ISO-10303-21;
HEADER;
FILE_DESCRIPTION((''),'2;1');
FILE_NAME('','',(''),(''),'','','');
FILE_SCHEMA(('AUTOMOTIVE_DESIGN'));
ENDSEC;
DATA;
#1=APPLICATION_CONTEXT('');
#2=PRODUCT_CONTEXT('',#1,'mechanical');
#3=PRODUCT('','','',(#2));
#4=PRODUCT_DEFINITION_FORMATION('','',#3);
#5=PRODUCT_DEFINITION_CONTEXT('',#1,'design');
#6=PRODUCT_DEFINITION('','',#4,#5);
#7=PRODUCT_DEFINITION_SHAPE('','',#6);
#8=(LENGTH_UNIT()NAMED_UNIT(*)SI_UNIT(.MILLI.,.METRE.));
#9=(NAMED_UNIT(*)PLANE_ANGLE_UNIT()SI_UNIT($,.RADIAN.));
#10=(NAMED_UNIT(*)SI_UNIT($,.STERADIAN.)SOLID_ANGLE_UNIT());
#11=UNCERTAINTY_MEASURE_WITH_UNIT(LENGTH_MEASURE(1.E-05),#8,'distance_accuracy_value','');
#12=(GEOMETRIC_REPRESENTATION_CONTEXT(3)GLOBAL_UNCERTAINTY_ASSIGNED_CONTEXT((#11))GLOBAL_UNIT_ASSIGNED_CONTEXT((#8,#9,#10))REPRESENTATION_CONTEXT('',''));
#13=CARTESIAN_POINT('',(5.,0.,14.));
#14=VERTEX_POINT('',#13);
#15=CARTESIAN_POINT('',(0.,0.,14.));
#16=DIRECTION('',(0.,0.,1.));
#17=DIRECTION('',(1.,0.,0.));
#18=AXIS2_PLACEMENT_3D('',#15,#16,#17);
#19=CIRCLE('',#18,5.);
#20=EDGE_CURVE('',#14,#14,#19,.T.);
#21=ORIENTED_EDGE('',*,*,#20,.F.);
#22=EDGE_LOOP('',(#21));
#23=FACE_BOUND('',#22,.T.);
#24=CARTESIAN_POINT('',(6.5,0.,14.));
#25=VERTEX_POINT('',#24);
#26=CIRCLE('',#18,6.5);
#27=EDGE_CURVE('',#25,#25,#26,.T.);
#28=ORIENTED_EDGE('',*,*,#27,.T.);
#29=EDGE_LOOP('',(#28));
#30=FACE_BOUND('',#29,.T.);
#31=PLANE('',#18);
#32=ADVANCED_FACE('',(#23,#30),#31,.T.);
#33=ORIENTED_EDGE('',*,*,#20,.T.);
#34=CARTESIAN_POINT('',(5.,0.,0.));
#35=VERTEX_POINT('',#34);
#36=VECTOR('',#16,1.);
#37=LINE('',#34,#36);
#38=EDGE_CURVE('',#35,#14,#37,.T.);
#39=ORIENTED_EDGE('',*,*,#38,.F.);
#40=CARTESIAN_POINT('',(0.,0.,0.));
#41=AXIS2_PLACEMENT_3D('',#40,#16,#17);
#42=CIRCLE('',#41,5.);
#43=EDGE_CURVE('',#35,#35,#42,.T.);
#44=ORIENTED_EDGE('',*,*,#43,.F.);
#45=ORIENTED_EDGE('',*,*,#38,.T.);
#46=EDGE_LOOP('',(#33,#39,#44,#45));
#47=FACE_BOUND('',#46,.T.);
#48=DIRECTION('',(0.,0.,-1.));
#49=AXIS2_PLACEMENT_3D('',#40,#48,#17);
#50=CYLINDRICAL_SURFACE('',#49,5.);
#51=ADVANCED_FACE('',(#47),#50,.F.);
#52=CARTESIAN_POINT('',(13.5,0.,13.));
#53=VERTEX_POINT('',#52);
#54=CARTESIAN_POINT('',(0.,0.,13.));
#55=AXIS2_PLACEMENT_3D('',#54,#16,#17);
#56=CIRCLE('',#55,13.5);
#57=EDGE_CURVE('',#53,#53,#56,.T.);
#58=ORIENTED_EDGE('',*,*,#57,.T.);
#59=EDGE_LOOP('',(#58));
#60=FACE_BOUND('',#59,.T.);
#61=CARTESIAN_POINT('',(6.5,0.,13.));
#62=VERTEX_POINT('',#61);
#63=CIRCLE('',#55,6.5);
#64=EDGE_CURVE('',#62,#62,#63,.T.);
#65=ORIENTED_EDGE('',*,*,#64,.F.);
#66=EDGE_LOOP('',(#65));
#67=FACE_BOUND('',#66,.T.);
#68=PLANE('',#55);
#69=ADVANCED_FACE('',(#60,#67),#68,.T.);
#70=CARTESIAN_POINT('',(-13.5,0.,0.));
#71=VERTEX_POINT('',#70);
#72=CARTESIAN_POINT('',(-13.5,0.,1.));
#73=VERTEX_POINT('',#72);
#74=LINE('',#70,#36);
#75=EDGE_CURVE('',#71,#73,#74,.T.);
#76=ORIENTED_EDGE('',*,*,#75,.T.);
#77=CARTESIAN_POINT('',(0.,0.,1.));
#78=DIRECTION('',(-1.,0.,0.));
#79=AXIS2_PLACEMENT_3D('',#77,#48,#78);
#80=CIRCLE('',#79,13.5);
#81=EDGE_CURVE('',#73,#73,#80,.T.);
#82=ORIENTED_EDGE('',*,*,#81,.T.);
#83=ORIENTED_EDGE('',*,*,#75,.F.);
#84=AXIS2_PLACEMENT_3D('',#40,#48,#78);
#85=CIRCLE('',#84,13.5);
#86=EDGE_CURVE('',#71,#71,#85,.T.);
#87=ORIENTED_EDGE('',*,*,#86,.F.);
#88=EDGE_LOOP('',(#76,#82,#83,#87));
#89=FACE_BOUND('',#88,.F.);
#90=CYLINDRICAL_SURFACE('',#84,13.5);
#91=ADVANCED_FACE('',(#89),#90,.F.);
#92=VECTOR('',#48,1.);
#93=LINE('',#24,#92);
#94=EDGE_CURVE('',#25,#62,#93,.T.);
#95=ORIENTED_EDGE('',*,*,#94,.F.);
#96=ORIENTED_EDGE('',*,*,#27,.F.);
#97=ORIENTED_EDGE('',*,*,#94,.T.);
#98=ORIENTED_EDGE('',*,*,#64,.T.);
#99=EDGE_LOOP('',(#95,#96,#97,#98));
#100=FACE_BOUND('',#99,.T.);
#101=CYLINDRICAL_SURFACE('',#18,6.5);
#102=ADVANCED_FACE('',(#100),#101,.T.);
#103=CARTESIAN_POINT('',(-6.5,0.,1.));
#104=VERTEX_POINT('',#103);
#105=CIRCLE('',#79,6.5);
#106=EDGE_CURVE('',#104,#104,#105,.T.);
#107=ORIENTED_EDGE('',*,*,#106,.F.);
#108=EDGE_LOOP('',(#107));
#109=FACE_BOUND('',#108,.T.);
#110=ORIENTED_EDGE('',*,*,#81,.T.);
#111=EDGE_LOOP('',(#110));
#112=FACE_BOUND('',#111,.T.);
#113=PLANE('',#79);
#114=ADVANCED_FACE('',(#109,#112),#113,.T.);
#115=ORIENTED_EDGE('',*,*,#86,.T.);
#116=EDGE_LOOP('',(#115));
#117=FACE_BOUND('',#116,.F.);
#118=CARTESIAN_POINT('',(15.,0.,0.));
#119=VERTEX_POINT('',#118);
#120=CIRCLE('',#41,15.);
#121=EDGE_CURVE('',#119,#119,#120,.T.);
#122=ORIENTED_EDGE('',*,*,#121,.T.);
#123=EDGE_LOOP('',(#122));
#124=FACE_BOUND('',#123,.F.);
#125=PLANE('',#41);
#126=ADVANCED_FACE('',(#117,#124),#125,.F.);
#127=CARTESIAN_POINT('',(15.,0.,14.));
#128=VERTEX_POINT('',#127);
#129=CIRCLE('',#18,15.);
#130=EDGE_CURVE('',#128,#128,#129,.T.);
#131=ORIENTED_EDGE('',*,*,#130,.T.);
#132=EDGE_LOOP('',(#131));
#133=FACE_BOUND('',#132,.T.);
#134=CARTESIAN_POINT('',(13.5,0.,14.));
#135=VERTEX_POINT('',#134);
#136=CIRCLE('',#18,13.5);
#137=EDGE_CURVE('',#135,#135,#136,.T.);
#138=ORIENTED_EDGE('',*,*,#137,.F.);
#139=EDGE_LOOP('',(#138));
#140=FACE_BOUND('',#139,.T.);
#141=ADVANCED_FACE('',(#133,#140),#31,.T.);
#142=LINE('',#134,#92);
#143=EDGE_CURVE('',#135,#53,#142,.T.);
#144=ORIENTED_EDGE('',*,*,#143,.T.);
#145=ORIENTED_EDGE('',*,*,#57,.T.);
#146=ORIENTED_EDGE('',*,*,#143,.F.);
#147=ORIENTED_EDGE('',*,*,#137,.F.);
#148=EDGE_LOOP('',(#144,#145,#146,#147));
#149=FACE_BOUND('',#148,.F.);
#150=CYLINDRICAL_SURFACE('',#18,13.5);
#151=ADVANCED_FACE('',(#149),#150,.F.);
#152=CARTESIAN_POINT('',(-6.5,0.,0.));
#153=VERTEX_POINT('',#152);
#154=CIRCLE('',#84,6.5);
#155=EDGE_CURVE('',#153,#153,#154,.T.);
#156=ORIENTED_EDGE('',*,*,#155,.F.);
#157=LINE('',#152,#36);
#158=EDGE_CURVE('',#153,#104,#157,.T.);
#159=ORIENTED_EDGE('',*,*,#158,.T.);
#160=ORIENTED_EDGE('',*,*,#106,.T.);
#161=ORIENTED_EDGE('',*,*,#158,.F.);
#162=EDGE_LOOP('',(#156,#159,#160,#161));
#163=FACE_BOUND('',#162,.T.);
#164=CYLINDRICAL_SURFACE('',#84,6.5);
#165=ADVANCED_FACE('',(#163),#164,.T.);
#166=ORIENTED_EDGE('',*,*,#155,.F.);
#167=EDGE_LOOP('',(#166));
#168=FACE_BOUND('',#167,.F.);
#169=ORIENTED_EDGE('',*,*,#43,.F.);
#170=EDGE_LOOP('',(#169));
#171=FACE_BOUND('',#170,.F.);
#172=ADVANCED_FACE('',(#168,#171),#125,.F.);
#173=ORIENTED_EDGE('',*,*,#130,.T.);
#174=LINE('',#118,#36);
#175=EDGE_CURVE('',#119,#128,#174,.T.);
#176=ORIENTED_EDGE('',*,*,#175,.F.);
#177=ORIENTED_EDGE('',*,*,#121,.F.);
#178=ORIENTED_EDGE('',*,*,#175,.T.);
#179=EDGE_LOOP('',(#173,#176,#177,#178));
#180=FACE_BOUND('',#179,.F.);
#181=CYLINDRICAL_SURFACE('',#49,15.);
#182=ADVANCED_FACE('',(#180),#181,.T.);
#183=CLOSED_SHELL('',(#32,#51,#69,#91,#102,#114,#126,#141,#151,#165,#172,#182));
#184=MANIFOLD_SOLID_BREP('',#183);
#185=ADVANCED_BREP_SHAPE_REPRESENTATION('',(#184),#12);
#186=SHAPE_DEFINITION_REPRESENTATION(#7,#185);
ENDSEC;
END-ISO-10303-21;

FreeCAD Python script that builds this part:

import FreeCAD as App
import Part
import Sketcher

doc = App.newDocument("Part")
body = doc.addObject("PartDesign::Body", "Body")

sketch1 = body.newObject("Sketcher::SketchObject", "Sketch")
sketch1.AttachmentSupport = (doc.getObject("XY_Plane"), [""])
sketch1.MapMode = "FlatFace"
sketch1.addGeometry([
    Part.Circle(App.Vector(0, 0, 0), App.Vector(0, 0, 1), 15),
    Part.Circle(App.Vector(0, 0, 0), App.Vector(0, 0, 1), 5),
], False)
sketch1.addConstraint([
    Sketcher.Constraint("Coincident", 0, 3, -1, 1),
    Sketcher.Constraint("Coincident", 1, 3, -1, 1),
    Sketcher.Constraint("Diameter", 0, 30.0),
    Sketcher.Constraint("Diameter", 1, 10.0),
])
pad1 = body.newObject("PartDesign::Pad", "Pad")
pad1.Profile = sketch1
pad1.Length = 14

sketch2 = body.newObject("Sketcher::SketchObject", "Sketch001")
sketch2.AttachmentSupport = (doc.getObject("XY_Plane"), [""])
sketch2.MapMode = "FlatFace"
sketch2.AttachmentOffset = App.Placement(App.Vector(0, 0, 14), App.Rotation())
sketch2.addGeometry([
    Part.Circle(App.Vector(0, 0, 0), App.Vector(0, 0, 1), 13.5),
    Part.Circle(App.Vector(0, 0, 0), App.Vector(0, 0, 1), 6.5),
], False)
sketch2.addConstraint([
    Sketcher.Constraint("Coincident", 0, 3, -1, 1),
    Sketcher.Constraint("Coincident", 1, 3, -1, 1),
    Sketcher.Constraint("Diameter", 0, 27.0),
    Sketcher.Constraint("Diameter", 1, 13.0),
])
pocket1 = body.newObject("PartDesign::Pocket", "Pocket")
pocket1.Profile = sketch2
pocket1.Length = 1

sketch3 = body.newObject("Sketcher::SketchObject", "Sketch002")
sketch3.AttachmentSupport = (doc.getObject("XY_Plane"), [""])
sketch3.MapMode = "FlatFace"
sketch3.addGeometry([
    Part.Circle(App.Vector(0, 0, 0), App.Vector(0, 0, 1), 13.5),
    Part.Circle(App.Vector(0, 0, 0), App.Vector(0, 0, 1), 6.5),
], False)
sketch3.addConstraint([
    Sketcher.Constraint("Coincident", 0, 3, -1, 1),
    Sketcher.Constraint("Coincident", 1, 3, -1, 1),
    Sketcher.Constraint("Diameter", 0, 27.0),
    Sketcher.Constraint("Diameter", 1, 13.0),
])
pocket2 = body.newObject("PartDesign::Pocket", "Pocket001")
pocket2.Profile = sketch3
pocket2.Length = 1
pocket2.Reversed = True

doc.recompute()
